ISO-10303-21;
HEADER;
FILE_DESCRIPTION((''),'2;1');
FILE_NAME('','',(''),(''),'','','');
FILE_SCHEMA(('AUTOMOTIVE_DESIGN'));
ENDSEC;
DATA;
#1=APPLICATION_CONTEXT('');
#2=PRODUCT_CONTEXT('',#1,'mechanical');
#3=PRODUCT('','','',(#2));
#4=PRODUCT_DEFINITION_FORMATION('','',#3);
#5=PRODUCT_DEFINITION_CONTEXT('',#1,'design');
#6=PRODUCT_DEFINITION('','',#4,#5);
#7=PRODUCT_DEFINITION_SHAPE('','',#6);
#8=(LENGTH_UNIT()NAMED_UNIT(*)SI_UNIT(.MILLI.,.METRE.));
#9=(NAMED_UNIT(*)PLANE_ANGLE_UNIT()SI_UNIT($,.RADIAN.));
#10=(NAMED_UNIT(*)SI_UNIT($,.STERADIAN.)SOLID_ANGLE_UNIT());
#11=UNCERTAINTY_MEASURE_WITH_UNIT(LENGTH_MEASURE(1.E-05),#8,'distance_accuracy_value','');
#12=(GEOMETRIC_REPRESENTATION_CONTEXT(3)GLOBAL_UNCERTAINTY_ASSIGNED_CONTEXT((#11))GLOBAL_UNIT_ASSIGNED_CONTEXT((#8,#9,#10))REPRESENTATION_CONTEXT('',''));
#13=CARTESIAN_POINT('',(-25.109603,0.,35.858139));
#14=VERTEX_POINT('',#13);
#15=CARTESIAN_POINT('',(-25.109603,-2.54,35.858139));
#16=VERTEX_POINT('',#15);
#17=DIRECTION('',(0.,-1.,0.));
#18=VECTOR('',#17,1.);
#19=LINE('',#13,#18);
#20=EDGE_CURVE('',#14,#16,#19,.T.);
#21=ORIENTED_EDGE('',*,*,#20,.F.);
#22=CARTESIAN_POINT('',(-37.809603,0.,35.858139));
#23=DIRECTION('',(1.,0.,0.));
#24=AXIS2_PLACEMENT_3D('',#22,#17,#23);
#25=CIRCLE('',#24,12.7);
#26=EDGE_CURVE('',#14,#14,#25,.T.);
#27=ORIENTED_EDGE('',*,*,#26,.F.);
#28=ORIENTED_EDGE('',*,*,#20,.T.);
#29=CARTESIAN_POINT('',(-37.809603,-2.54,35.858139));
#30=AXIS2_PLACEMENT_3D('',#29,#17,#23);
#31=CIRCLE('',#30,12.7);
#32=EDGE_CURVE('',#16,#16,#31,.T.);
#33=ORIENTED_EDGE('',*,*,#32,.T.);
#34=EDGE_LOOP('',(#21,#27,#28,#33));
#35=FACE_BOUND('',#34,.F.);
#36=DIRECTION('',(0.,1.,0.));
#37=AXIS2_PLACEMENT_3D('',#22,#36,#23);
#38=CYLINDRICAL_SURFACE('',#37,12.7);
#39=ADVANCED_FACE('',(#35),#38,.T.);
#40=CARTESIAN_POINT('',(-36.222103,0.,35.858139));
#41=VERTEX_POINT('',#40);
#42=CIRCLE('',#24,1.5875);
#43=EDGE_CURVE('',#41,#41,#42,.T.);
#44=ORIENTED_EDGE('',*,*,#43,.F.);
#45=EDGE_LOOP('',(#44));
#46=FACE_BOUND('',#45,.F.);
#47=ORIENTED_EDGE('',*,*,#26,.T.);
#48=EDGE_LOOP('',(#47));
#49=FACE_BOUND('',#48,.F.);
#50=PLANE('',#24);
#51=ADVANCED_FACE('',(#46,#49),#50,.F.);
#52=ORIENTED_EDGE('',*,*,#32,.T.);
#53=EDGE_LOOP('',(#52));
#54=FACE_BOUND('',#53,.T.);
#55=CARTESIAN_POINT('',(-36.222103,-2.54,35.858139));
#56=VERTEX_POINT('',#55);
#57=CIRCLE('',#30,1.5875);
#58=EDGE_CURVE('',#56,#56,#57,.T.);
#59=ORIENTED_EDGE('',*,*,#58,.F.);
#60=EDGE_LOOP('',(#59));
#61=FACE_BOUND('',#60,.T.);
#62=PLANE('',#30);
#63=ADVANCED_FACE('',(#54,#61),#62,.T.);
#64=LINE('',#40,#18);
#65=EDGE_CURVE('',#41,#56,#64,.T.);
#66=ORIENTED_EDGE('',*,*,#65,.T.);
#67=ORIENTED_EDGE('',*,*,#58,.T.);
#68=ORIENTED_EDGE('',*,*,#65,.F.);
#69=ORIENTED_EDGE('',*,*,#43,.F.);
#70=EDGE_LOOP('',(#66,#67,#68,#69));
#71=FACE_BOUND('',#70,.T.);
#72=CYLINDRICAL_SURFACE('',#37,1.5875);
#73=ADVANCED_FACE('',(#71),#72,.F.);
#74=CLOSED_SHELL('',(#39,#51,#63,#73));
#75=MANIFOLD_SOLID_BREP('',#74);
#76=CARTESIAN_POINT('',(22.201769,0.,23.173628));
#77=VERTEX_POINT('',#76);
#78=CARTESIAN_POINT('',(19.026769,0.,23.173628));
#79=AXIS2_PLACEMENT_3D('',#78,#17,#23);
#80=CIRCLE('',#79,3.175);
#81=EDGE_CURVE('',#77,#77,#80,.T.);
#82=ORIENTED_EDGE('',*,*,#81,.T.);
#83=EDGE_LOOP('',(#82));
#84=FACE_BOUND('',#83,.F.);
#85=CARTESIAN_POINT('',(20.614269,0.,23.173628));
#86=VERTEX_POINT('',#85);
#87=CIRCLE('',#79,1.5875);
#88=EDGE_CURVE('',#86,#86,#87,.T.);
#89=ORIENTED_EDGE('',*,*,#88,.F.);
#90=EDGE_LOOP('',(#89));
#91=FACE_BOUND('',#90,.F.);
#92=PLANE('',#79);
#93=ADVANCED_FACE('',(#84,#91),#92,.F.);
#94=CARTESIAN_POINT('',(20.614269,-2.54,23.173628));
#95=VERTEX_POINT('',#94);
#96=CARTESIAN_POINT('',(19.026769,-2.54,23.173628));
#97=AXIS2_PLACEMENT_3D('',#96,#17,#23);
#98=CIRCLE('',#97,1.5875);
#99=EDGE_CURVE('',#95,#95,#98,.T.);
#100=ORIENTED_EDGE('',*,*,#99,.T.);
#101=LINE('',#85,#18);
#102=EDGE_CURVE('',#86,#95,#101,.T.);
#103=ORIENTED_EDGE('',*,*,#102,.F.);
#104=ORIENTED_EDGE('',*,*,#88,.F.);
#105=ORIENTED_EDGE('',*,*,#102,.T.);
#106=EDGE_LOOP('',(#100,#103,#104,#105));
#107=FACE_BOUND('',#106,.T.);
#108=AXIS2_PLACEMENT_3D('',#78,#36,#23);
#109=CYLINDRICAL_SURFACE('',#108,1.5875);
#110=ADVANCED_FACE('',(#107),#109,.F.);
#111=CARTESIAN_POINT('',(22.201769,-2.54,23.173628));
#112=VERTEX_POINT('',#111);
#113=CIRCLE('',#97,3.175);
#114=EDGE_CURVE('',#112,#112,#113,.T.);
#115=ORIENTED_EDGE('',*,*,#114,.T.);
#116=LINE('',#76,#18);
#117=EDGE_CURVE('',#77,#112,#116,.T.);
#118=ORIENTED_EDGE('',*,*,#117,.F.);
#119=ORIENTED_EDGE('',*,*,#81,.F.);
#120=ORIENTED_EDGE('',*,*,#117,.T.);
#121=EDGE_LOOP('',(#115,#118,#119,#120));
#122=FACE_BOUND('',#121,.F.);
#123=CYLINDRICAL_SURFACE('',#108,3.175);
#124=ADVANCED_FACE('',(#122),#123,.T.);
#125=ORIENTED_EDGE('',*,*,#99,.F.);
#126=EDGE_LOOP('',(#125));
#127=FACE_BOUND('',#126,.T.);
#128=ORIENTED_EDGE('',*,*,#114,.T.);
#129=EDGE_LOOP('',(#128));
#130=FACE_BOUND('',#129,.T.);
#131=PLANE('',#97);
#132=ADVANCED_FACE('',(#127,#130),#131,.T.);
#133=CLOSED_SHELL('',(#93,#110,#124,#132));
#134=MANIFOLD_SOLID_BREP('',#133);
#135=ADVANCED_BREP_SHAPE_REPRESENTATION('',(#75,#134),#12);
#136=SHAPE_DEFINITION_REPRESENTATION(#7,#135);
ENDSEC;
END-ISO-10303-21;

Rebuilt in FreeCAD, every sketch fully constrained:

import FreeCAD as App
import Part
import Sketcher
from FreeCAD import Vector
Q = App.Units.Quantity

doc = App.newDocument("Part")
body = doc.addObject("PartDesign::Body", "Body")
body.AllowCompound = True

# Sketch on XZ plane
sketch1 = doc.addObject("Sketcher::SketchObject", "Sketch")
body.addObject(sketch1)
sketch1.AttachmentSupport = (doc.XZ_Plane, [""])
sketch1.MapMode = "FlatFace"
sketch1.addGeometry([
    Part.Circle(Vector(-37.8, 35.9, 0), Vector(0, 0, 1), 12.7),
    Part.Circle(Vector(-37.8, 35.9, 0), Vector(0, 0, 1), 1.6),
    Part.Circle(Vector(19, 23.2, 0), Vector(0, 0, 1), 3.2),
    Part.Circle(Vector(19, 23.2, 0), Vector(0, 0, 1), 1.6),
], False)
sketch1.addConstraint([
    Sketcher.Constraint("Coincident", 1, 3, 0, 3),
    Sketcher.Constraint("Coincident", 3, 3, 2, 3),
    Sketcher.Constraint("Equal", 1, 3),
    Sketcher.Constraint("Diameter", 0, Q("1 in")),
    Sketcher.Constraint("Diameter", 2, Q("0.25 in")),
    Sketcher.Constraint("Diameter", 1, Q("0.125 in")),
    Sketcher.Constraint("DistanceY", -1, 1, 0, 3, Q("35.858139 mm")),
    Sketcher.Constraint("DistanceX", -1, 1, 2, 3, Q("19.026769 mm")),
    Sketcher.Constraint("DistanceY", -1, 1, 2, 3, Q("23.173628 mm")),
    Sketcher.Constraint("DistanceX", 0, 3, -1, 1, Q("37.809603 mm")),
])
pad1 = doc.addObject("PartDesign::Pad", "Pad")
body.addObject(pad1)
pad1.Profile = sketch1
pad1.Length = Q("0.1 in")

doc.recompute()
